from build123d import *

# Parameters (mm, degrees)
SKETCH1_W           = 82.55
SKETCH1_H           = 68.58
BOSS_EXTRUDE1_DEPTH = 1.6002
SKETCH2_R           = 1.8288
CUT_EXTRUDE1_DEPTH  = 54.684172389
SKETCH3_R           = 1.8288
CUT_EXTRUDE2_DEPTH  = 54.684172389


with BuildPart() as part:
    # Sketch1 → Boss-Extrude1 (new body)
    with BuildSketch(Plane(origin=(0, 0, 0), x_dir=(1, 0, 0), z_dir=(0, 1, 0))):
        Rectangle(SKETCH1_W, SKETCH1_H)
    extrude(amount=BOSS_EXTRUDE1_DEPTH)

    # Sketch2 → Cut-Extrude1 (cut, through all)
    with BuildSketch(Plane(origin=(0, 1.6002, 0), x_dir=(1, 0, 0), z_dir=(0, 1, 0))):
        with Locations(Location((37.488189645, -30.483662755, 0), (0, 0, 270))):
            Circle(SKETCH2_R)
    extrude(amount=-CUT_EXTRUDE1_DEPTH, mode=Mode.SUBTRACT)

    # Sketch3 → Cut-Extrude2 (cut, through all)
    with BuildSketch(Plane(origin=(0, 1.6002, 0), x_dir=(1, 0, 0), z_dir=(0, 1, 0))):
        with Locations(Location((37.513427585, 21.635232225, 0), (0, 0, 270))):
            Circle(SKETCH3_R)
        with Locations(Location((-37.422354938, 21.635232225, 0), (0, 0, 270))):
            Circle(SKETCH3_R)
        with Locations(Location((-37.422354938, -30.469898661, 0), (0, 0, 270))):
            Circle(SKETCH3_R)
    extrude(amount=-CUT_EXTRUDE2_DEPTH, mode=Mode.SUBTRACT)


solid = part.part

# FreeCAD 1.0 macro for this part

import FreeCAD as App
import Part
import Sketcher
from FreeCAD import Vector
Q = App.Units.Quantity

doc = App.newDocument("Part")
body = doc.addObject("PartDesign::Body", "Body")

# Sketch on XZ plane
sketch1 = body.newObject("Sketcher::SketchObject", "Sketch")
sketch1.AttachmentSupport = (doc.getObject("XZ_Plane"), [""])
sketch1.MapMode = "FlatFace"
sketch1.addGeometry([
    Part.LineSegment(Vector(-41.275, -34.29, 0), Vector(-41.275, 34.29, 0)),
    Part.LineSegment(Vector(-41.275, 34.29, 0), Vector(41.275, 34.29, 0)),
    Part.LineSegment(Vector(41.275, 34.29, 0), Vector(41.275, -34.29, 0)),
    Part.LineSegment(Vector(41.275, -34.29, 0), Vector(-41.275, -34.29, 0)),
], False)
sketch1.addConstraint([
    Sketcher.Constraint("Coincident", 0, 2, 1, 1),
    Sketcher.Constraint("Coincident", 1, 2, 2, 1),
    Sketcher.Constraint("Coincident", 2, 2, 3, 1),
    Sketcher.Constraint("Coincident", 3, 2, 0, 1),
    Sketcher.Constraint("Vertical", 0),
    Sketcher.Constraint("Horizontal", 1),
    Sketcher.Constraint("Vertical", 2),
    Sketcher.Constraint("Horizontal", 3),
    Sketcher.Constraint("Symmetric", 0, 2, 2, 2, -1, 1),
    Sketcher.Constraint("DistanceY", 0, 1, 0, 2, Q("2.7 in")),
    Sketcher.Constraint("DistanceX", 1, 1, 1, 2, Q("3.25 in")),
])
pad1 = body.newObject("PartDesign::Pad", "Pad")
pad1.Profile = sketch1
pad1.Length = Q("0.063 in")
pad1.Reversed = True

# Sketch on XZ plane
sketch2 = body.newObject("Sketcher::SketchObject", "Sketch001")
sketch2.AttachmentSupport = (doc.getObject("XZ_Plane"), [""])
sketch2.MapMode = "FlatFace"
sketch2.AttachmentOffset = App.Placement(Vector(0, 0, -0.063 * 25.4), App.Rotation())
sketch2.addGeometry(Part.Circle(Vector(37.48819, 30.483663, 0), Vector(0, 0, 1), 1.8288), False)
sketch2.addConstraint([
    Sketcher.Constraint("Diameter", 0, Q("0.144 in")),
    Sketcher.Constraint("DistanceX", -1, 1, 0, 3, 37.48819),
    Sketcher.Constraint("DistanceY", -1, 1, 0, 3, 30.483663),
])
pocket1 = body.newObject("PartDesign::Pocket", "Pocket")
pocket1.Profile = sketch2
pocket1.Type = "ThroughAll"
pocket1.Reversed = True

# Sketch on XZ plane
sketch3 = body.newObject("Sketcher::SketchObject", "Sketch002")
sketch3.AttachmentSupport = (doc.getObject("XZ_Plane"), [""])
sketch3.MapMode = "FlatFace"
sketch3.AttachmentOffset = App.Placement(Vector(0, 0, -0.063 * 25.4), App.Rotation())
sketch3.addGeometry([
    Part.Circle(Vector(37.513428, -21.635232, 0), Vector(0, 0, 1), 1.8288),
    Part.Circle(Vector(-37.422355, -21.635232, 0), Vector(0, 0, 1), 1.8288),
    Part.Circle(Vector(-37.422355, 30.469899, 0), Vector(0, 0, 1), 1.8288),
], False)
sketch3.addConstraint([
    Sketcher.Constraint("Equal", 0, 1),
    Sketcher.Constraint("Equal", 1, 2),
    Sketcher.Constraint("Horizontal", 0, 3, 1, 3),
    Sketcher.Constraint("Vertical", 1, 3, 2, 3),
    Sketcher.Constraint("Diameter", 0, Q("0.144 in")),
    Sketcher.Constraint("DistanceY", -1, 1, 2, 3, 30.469899),
    Sketcher.Constraint("DistanceY", 1, 3, 2, 3, 52.105131),
    Sketcher.Constraint("DistanceX", -1, 1, 0, 3, 37.513428),
    Sketcher.Constraint("DistanceX", 1, 3, -1, 1, 37.422355),
])
pocket2 = body.newObject("PartDesign::Pocket", "Pocket001")
pocket2.Profile = sketch3
pocket2.Type = "ThroughAll"
pocket2.Reversed = True

doc.recompute()
